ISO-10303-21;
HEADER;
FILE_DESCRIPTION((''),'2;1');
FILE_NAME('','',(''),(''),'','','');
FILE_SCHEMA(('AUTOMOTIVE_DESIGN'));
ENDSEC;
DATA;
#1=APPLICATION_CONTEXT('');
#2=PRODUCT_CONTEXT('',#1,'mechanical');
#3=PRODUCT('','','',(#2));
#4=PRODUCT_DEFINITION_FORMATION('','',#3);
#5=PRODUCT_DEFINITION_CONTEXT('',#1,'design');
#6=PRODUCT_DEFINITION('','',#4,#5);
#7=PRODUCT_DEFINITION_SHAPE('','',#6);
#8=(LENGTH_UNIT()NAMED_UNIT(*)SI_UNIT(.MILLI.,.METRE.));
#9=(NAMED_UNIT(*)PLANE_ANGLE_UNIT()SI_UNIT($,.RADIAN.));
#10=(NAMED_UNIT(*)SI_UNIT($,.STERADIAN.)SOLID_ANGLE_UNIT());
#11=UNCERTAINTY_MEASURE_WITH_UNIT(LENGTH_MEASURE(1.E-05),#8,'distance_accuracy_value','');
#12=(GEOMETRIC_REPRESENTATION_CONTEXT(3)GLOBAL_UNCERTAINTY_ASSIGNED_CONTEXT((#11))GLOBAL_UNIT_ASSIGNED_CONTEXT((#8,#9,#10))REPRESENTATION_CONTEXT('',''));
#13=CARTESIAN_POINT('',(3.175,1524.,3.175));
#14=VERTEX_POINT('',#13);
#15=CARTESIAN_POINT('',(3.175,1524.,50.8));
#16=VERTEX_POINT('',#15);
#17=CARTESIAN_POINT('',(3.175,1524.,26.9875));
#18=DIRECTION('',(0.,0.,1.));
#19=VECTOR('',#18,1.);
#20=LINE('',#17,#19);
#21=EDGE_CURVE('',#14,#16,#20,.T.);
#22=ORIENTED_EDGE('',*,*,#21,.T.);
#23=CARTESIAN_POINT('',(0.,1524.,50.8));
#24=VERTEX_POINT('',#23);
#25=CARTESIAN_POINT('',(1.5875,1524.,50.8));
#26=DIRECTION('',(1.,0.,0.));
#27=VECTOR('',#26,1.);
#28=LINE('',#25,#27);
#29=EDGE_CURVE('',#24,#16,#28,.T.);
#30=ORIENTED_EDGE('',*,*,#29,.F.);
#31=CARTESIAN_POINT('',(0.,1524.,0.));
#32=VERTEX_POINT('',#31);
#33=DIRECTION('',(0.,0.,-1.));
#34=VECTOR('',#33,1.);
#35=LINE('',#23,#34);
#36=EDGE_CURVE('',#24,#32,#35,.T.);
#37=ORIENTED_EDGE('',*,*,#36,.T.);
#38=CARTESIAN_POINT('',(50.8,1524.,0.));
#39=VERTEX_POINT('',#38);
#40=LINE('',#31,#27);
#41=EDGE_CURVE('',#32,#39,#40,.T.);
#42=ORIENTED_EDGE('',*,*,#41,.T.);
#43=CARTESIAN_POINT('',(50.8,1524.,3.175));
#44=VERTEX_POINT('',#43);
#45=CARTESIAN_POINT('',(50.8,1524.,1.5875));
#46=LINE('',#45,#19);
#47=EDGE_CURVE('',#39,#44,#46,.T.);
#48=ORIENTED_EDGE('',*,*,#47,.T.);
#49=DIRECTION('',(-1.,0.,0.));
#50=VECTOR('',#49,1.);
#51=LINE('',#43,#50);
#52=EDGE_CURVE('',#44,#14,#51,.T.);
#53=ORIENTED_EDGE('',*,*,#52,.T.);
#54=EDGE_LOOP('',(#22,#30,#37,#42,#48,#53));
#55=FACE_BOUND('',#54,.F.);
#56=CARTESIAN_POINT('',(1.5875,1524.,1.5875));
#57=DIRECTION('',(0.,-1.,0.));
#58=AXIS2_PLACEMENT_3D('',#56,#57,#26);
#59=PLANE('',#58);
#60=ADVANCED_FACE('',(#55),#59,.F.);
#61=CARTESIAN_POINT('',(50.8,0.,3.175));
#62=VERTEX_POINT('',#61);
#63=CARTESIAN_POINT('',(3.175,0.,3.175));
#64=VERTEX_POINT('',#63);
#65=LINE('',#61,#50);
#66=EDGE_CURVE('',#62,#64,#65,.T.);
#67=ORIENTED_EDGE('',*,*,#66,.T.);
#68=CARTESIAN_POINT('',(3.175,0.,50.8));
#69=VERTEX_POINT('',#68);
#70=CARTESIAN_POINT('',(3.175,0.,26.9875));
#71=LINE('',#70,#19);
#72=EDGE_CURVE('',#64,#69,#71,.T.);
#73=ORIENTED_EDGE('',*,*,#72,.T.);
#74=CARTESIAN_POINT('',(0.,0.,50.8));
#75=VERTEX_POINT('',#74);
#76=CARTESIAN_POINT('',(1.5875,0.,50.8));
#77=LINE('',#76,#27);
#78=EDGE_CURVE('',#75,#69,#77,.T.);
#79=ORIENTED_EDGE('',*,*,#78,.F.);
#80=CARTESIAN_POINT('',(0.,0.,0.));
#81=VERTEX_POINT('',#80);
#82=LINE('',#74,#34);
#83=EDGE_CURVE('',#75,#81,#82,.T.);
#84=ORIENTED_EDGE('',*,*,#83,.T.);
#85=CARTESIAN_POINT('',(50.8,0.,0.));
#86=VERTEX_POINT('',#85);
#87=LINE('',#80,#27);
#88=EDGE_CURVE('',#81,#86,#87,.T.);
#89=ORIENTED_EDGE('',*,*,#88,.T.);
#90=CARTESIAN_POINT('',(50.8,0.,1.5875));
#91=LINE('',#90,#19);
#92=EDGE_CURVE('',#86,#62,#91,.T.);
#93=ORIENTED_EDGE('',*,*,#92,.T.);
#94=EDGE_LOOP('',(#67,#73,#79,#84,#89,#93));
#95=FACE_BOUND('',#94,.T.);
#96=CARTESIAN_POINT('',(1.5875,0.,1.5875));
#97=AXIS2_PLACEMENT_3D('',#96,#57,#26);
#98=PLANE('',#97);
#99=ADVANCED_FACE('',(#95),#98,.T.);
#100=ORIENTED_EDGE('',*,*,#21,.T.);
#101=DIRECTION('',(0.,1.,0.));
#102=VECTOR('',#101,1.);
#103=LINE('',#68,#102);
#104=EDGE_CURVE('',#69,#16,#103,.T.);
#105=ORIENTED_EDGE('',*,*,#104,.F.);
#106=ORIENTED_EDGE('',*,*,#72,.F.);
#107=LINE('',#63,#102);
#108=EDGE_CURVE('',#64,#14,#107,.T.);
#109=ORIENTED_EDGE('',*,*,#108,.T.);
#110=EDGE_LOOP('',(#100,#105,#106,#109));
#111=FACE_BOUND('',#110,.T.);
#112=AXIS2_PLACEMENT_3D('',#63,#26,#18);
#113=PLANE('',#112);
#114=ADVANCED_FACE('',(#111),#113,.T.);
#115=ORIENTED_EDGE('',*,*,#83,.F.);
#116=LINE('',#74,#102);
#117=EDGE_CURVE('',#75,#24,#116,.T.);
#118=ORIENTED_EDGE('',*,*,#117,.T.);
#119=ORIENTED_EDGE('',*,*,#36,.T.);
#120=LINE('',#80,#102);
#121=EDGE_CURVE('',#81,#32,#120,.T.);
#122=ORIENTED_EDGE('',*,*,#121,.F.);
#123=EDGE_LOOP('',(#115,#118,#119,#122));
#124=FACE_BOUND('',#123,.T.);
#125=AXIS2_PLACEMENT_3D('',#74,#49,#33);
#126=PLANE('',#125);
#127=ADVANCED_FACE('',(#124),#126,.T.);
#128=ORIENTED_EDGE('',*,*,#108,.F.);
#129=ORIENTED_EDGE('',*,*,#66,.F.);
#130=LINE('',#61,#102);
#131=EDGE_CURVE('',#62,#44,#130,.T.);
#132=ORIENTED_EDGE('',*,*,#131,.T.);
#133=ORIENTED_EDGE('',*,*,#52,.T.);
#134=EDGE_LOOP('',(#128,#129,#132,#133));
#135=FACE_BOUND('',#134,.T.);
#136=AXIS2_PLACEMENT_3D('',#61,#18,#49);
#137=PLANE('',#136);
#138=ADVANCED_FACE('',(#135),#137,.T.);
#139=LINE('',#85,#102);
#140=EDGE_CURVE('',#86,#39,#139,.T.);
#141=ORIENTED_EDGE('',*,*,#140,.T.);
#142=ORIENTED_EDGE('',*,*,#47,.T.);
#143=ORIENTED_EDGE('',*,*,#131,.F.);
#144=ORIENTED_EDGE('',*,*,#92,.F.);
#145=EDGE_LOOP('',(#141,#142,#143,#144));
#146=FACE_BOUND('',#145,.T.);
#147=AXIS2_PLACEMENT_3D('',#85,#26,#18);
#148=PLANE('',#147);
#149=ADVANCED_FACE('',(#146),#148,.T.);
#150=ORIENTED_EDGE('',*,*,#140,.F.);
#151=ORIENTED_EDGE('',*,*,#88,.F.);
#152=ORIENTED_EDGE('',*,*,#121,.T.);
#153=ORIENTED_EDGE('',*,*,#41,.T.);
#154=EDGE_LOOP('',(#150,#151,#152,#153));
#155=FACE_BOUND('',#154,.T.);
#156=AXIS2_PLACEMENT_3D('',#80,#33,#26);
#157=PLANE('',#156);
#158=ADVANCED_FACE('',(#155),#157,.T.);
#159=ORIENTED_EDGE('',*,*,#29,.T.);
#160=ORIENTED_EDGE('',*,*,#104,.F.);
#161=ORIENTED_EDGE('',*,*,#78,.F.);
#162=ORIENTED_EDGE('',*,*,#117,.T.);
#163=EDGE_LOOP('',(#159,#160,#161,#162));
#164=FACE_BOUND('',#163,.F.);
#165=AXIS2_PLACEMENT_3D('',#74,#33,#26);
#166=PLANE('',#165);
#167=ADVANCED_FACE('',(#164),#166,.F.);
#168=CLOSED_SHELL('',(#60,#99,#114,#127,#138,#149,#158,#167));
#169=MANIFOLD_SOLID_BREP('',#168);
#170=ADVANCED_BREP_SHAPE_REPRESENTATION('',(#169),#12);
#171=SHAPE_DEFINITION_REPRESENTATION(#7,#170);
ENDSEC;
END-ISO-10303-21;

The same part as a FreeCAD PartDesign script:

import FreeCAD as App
import Part
import Sketcher
Q = App.Units.Quantity


def add_polygon(sketch, points):
    """Adds a closed chain of lines whose ends are joined by coincident constraints."""
    first, n = sketch.GeometryCount, len(points)
    for a, b in zip(points, points[1:] + points[:1]):
        sketch.addGeometry(Part.LineSegment(App.Vector(*a, 0), App.Vector(*b, 0)), False)
    for i in range(n):
        sketch.addConstraint(Sketcher.Constraint("Coincident", first + i, 2, first + (i + 1) % n, 1))

doc = App.newDocument("Part")
body = doc.addObject("PartDesign::Body", "Body")

# Sketch on XZ plane
sketch1 = doc.addObject("Sketcher::SketchObject", "Sketch")
body.addObject(sketch1)
sketch1.AttachmentSupport = (doc.XZ_Plane, [""])
sketch1.MapMode = "FlatFace"
add_polygon(sketch1, [(0, 0), (50.8, 0), (50.8, 3.2), (3.2, 3.2), (3.2, 50.8), (0, 50.8)])  # lines 0-5
sketch1.addConstraint([
    Sketcher.Constraint("Horizontal", 0),
    Sketcher.Constraint("Vertical", 1),
    Sketcher.Constraint("Horizontal", 2),
    Sketcher.Constraint("Vertical", 3),
    Sketcher.Constraint("Horizontal", 4),
    Sketcher.Constraint("Vertical", 5),
    Sketcher.Constraint("Coincident", 5, 2, -1, 1),
    Sketcher.Constraint("Equal", 4, 1),
    Sketcher.Constraint("Equal", 2, 3),
    Sketcher.Constraint("DistanceX", 0, 1, 0, 2, Q("2 in")),
    Sketcher.Constraint("DistanceX", 2, 2, 2, 1, Q("1.875 in")),
])
pad1 = doc.addObject("PartDesign::Pad", "Pad")
body.addObject(pad1)
pad1.Profile = sketch1
pad1.Length = Q("60 in")
pad1.Reversed = True

doc.recompute()
